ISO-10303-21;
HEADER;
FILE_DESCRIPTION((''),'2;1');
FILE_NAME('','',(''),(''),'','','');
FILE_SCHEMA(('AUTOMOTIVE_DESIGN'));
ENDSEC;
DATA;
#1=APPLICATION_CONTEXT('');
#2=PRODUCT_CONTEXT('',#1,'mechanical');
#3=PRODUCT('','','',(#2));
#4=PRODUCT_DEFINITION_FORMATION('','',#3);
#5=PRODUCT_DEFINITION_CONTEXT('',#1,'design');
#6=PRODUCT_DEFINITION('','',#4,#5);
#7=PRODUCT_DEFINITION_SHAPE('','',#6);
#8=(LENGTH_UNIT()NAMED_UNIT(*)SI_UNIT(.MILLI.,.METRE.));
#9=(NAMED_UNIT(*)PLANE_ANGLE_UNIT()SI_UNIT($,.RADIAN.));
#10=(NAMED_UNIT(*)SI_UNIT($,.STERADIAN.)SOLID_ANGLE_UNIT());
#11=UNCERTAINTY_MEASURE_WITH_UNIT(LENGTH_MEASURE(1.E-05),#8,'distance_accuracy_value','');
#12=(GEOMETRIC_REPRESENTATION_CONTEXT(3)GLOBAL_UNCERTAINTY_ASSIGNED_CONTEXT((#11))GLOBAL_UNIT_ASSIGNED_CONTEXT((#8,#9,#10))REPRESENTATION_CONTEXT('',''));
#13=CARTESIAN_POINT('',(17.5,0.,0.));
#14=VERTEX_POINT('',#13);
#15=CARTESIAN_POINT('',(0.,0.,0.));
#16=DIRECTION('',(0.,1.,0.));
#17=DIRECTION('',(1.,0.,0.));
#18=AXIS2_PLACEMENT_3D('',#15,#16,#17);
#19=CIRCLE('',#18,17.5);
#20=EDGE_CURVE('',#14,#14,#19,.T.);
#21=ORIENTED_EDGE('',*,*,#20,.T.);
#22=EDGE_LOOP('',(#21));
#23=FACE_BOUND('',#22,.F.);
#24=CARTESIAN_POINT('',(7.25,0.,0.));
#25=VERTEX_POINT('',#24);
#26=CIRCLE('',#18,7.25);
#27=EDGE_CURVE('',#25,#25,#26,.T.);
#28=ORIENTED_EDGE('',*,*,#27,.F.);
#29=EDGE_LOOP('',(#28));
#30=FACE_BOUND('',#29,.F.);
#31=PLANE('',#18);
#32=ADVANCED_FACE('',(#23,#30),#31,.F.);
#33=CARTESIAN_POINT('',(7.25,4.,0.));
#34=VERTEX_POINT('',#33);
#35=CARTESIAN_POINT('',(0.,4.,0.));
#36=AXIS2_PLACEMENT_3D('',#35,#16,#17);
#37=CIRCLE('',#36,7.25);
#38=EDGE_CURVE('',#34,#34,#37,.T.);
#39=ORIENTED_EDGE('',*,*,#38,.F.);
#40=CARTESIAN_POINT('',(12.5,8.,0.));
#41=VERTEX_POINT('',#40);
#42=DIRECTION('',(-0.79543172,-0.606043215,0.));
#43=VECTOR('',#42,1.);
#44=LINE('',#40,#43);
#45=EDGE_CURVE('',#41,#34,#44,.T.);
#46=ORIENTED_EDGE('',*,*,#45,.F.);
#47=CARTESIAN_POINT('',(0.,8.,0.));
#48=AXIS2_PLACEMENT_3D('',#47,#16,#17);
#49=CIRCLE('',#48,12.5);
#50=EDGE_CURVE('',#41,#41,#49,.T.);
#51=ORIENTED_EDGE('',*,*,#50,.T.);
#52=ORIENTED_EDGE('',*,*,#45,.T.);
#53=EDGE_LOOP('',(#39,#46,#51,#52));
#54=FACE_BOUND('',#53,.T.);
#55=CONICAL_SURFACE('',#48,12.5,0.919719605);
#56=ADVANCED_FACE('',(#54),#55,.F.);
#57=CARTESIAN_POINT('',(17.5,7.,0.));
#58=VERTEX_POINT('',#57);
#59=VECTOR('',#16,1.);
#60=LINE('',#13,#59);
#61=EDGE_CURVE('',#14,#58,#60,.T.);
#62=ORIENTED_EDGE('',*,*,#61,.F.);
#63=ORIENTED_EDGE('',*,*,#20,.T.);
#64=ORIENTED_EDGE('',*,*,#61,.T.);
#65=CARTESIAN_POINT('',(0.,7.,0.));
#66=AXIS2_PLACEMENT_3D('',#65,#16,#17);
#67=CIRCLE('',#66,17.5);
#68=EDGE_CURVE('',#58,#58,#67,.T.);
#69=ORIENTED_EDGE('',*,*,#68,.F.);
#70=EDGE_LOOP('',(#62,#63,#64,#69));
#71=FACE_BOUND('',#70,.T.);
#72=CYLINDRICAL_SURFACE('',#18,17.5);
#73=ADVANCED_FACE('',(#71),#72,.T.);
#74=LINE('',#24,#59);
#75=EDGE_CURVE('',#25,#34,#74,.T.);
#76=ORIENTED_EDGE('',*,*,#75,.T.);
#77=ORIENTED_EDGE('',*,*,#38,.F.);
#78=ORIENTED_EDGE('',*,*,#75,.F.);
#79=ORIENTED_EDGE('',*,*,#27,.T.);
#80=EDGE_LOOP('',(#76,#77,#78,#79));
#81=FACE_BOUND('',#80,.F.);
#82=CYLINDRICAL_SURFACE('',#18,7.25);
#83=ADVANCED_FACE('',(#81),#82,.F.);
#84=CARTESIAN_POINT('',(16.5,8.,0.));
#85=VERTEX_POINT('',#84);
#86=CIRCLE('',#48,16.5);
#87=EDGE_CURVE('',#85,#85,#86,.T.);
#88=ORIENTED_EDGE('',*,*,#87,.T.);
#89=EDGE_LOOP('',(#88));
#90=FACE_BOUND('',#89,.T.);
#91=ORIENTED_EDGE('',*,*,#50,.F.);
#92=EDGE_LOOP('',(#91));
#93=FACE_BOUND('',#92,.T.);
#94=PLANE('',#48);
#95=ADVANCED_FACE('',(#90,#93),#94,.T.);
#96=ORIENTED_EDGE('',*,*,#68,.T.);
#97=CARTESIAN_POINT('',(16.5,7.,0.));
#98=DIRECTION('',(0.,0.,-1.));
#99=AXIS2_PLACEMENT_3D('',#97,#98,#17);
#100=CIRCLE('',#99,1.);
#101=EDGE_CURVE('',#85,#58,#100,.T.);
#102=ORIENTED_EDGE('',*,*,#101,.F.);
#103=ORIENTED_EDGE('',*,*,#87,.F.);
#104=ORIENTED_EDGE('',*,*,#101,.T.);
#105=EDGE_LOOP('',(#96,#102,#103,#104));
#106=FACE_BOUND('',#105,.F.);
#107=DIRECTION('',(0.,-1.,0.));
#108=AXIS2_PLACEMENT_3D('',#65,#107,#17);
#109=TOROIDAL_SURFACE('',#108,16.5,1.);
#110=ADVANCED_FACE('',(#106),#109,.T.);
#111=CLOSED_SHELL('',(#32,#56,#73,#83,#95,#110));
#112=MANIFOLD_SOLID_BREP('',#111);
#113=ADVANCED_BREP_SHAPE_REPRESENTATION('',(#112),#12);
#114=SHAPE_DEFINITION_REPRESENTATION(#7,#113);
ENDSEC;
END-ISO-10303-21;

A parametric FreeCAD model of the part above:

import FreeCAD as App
import Part
import Sketcher
from FreeCAD import Vector


def edges_at(feature, points):
    """Names of the edges that pass closest to the given points."""
    edges = feature.Shape.Edges
    near = lambda p: min(range(len(edges)), key=lambda i: edges[i].distToShape(Part.Vertex(*p))[0])
    return sorted({f"Edge{near(p) + 1}" for p in points})


def add_polygon(sketch, points):
    """Adds a closed chain of lines whose ends are joined by coincident constraints."""
    first, n = sketch.GeometryCount, len(points)
    for a, b in zip(points, points[1:] + points[:1]):
        sketch.addGeometry(Part.LineSegment(App.Vector(*a, 0), App.Vector(*b, 0)), False)
    for i in range(n):
        sketch.addConstraint(Sketcher.Constraint("Coincident", first + i, 2, first + (i + 1) % n, 1))

doc = App.newDocument("Part")
body = doc.addObject("PartDesign::Body", "Body")

sketch1 = body.newObject("Sketcher::SketchObject", "Sketch")
sketch1.AttachmentSupport = (doc.getObject("XY_Plane"), [""])
sketch1.MapMode = "FlatFace"
add_polygon(sketch1, [(7.2, 0), (17.5, 0), (17.5, 8), (12.5, 8), (7.2, 4)])
sketch1.addConstraint([
    Sketcher.Constraint("Horizontal", 0),
    Sketcher.Constraint("Vertical", 1),
    Sketcher.Constraint("Horizontal", 2),
    Sketcher.Constraint("Vertical", 4),
    Sketcher.Constraint("PointOnObject", 0, 2, -1),
    Sketcher.Constraint("DistanceX", 2, 2, 2, 1, 5.0),
    Sketcher.Constraint("DistanceY", 1, 1, 1, 2, 8.0),
    Sketcher.Constraint("DistanceY", 4, 2, 4, 1, 4.0),
    Sketcher.Constraint("DistanceX", 0, 1, 0, 2, 10.25),
    Sketcher.Constraint("DistanceX", -1, 1, 0, 2, 17.5),
])
revolution = body.newObject("PartDesign::Revolution", "Revolution")
revolution.Profile = sketch1
revolution.ReferenceAxis = (sketch1, ["V_Axis"])
revolution.Angle = 360
doc.recompute()

fillet = body.newObject("PartDesign::Fillet", "Fillet")
fillet.Base = (revolution, edges_at(revolution, [(-17.5, 8, 0)]))
fillet.Radius = 1

doc.recompute()
